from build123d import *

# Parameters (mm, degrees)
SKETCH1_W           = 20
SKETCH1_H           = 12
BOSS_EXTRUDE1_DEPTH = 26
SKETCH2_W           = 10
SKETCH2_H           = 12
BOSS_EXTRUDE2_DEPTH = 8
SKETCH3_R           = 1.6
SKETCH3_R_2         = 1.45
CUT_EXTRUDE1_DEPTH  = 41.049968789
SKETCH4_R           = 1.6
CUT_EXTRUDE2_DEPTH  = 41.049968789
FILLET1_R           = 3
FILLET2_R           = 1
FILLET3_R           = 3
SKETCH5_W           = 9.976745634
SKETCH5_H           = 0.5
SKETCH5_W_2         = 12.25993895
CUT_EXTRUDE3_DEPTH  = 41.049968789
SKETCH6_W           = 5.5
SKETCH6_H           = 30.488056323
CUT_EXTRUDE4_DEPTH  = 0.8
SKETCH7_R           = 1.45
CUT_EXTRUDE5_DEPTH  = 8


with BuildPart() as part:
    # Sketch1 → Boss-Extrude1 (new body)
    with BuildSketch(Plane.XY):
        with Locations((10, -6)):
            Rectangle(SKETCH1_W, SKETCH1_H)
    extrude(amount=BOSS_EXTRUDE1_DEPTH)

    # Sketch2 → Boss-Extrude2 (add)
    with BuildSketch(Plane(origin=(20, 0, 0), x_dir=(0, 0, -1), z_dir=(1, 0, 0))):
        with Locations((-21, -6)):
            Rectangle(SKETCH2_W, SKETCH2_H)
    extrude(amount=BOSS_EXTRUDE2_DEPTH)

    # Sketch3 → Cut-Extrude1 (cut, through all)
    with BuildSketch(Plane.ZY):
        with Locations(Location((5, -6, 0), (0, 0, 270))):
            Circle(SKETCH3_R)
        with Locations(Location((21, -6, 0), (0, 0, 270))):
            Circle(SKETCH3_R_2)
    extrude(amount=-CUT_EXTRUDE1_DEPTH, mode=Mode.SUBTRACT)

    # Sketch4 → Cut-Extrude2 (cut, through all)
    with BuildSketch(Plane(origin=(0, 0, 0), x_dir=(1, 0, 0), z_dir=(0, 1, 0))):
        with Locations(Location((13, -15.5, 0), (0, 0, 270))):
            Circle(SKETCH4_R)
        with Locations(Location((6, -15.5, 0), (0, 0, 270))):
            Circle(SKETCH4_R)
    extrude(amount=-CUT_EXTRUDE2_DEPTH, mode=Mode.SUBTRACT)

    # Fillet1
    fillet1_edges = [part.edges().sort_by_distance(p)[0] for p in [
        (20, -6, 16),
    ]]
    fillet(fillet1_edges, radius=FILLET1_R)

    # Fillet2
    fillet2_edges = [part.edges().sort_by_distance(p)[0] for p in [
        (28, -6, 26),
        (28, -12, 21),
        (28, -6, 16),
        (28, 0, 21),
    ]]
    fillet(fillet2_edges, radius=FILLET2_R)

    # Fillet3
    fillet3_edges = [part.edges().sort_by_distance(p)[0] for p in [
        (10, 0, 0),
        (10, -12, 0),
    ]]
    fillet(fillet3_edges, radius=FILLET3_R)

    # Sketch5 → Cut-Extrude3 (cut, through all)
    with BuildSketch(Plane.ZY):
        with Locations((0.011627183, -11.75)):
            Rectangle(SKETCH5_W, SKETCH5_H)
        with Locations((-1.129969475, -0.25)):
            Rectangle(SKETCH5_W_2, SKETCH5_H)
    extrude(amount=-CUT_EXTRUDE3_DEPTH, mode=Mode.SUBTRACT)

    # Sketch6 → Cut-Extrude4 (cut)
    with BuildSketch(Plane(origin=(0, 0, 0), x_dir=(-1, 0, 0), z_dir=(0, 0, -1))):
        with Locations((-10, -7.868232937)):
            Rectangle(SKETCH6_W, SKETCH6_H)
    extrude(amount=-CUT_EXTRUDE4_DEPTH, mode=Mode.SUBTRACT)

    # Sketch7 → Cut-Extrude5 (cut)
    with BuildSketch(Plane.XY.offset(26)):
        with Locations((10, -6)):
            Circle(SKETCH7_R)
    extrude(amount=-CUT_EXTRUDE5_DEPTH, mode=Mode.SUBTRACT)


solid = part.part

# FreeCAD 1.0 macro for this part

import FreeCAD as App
import Part
import Sketcher

V = App.Vector


def edges_at(feature, points):
    """Names of the edges that pass closest to the given points."""
    edges = feature.Shape.Edges
    near = lambda p: min(range(len(edges)), key=lambda i: edges[i].distToShape(Part.Vertex(*p))[0])
    return sorted({f"Edge{near(p) + 1}" for p in points})


def add_polygon(sketch, points):
    """Adds a closed chain of lines whose ends are joined by coincident constraints."""
    first, n = sketch.GeometryCount, len(points)
    for a, b in zip(points, points[1:] + points[:1]):
        sketch.addGeometry(Part.LineSegment(App.Vector(*a, 0), App.Vector(*b, 0)), False)
    for i in range(n):
        sketch.addConstraint(Sketcher.Constraint("Coincident", first + i, 2, first + (i + 1) % n, 1))

doc = App.newDocument("Part")
body = doc.addObject("PartDesign::Body", "Body")

# Sketch on XY plane
sketch1 = body.newObject("Sketcher::SketchObject", "Sketch")
sketch1.AttachmentSupport = (doc.getObject("XY_Plane"), [""])
sketch1.MapMode = "FlatFace"
add_polygon(sketch1, [(0, 0), (0, -12), (20, -12), (20, 0)])  # lines 0-3
sketch1.addConstraint(Sketcher.Constraint("Vertical", 0))
sketch1.addConstraint(Sketcher.Constraint("Horizontal", 1))
sketch1.addConstraint(Sketcher.Constraint("Vertical", 2))
sketch1.addConstraint(Sketcher.Constraint("Horizontal", 3))
sketch1.addConstraint(Sketcher.Constraint("Coincident", 3, 2, -1, 1))
sketch1.addConstraint(Sketcher.Constraint("DistanceX", 1, 1, 1, 2, 20.0))
sketch1.addConstraint(Sketcher.Constraint("DistanceY", 0, 2, 0, 1, 12.0))
pad1 = body.newObject("PartDesign::Pad", "Pad")
pad1.Profile = sketch1
pad1.Length = 26

# Sketch on YZ plane
sketch2 = body.newObject("Sketcher::SketchObject", "Sketch001")
sketch2.AttachmentSupport = (doc.getObject("YZ_Plane"), [""])
sketch2.MapMode = "FlatFace"
sketch2.AttachmentOffset = App.Placement(V(0, 0, 20), App.Rotation())
add_polygon(sketch2, [(0, 26), (-12, 26), (-12, 16), (0, 16)])  # lines 0-3
sketch2.addConstraint(Sketcher.Constraint("Horizontal", 0))
sketch2.addConstraint(Sketcher.Constraint("Vertical", 1))
sketch2.addConstraint(Sketcher.Constraint("Horizontal", 2))
sketch2.addConstraint(Sketcher.Constraint("Vertical", 3))
sketch2.addConstraint(Sketcher.Constraint("PointOnObject", 2, 2, -2))
sketch2.addConstraint(Sketcher.Constraint("DistanceX", 0, 2, 0, 1, 12.0))
sketch2.addConstraint(Sketcher.Constraint("DistanceY", 1, 2, 1, 1, 10.0))
sketch2.addConstraint(Sketcher.Constraint("DistanceY", -1, 1, 0, 2, 26.0))
pad2 = body.newObject("PartDesign::Pad", "Pad001")
pad2.Profile = sketch2
pad2.Length = 8

# Sketch on YZ plane
sketch3 = body.newObject("Sketcher::SketchObject", "Sketch002")
sketch3.AttachmentSupport = (doc.getObject("YZ_Plane"), [""])
sketch3.MapMode = "FlatFace"
sketch3.addGeometry(Part.Circle(V(-6, 5, 0), V(0, 0, 1), 1.6), False)
sketch3.addGeometry(Part.Circle(V(-6, 21, 0), V(0, 0, 1), 1.4), False)
sketch3.addConstraint(Sketcher.Constraint("Vertical", 0, 3, 1, 3))
sketch3.addConstraint(Sketcher.Constraint("Diameter", 0, 3.2))
sketch3.addConstraint(Sketcher.Constraint("Diameter", 1, 2.9))
sketch3.addConstraint(Sketcher.Constraint("DistanceX", 0, 3, -1, 1, 6.0))
sketch3.addConstraint(Sketcher.Constraint("DistanceY", -1, 1, 0, 3, 5.0))
sketch3.addConstraint(Sketcher.Constraint("DistanceY", -1, 1, 1, 3, 21.0))
pocket1 = body.newObject("PartDesign::Pocket", "Pocket")
pocket1.Profile = sketch3
pocket1.Type = "ThroughAll"
pocket1.Reversed = True

# Sketch on XZ plane
sketch4 = body.newObject("Sketcher::SketchObject", "Sketch003")
sketch4.AttachmentSupport = (doc.getObject("XZ_Plane"), [""])
sketch4.MapMode = "FlatFace"
sketch4.addGeometry(Part.Circle(V(13, 15.5, 0), V(0, 0, 1), 1.6), False)
sketch4.addGeometry(Part.Circle(V(6, 15.5, 0), V(0, 0, 1), 1.6), False)
sketch4.addConstraint(Sketcher.Constraint("Equal", 0, 1))
sketch4.addConstraint(Sketcher.Constraint("Horizontal", 0, 3, 1, 3))
sketch4.addConstraint(Sketcher.Constraint("Diameter", 0, 3.2))
sketch4.addConstraint(Sketcher.Constraint("DistanceX", -1, 1, 0, 3, 13.0))
sketch4.addConstraint(Sketcher.Constraint("DistanceX", -1, 1, 1, 3, 6.0))
sketch4.addConstraint(Sketcher.Constraint("DistanceY", -1, 1, 0, 3, 15.5))
pocket2 = body.newObject("PartDesign::Pocket", "Pocket001")
pocket2.Profile = sketch4
pocket2.Type = "ThroughAll"
pocket2.Reversed = True
doc.recompute()

fillet = body.newObject("PartDesign::Fillet", "Fillet")
fillet.Base = (pocket2, edges_at(pocket2, [(20, -6, 16)]))
fillet.Radius = 3
doc.recompute()

fillet2 = body.newObject("PartDesign::Fillet", "Fillet001")
fillet2.Base = (fillet, edges_at(fillet, [
    (28, -6, 26),
    (28, -12, 21),
    (28, -6, 16),
    (28, 0, 21),
]))
fillet2.Radius = 1
doc.recompute()

fillet3 = body.newObject("PartDesign::Fillet", "Fillet002")
fillet3.Base = (fillet2, edges_at(fillet2, [(10, 0, 0), (10, -12, 0)]))
fillet3.Radius = 3

# Sketch on YZ plane
sketch5 = body.newObject("Sketcher::SketchObject", "Sketch004")
sketch5.AttachmentSupport = (doc.getObject("YZ_Plane"), [""])
sketch5.MapMode = "FlatFace"
add_polygon(sketch5, [(-11.5, -5), (-12, -5), (-12, 5), (-11.5, 5)])  # lines 0-3
add_polygon(sketch5, [(0, -7.3), (-0.5, -7.3), (-0.5, 5), (0, 5)])  # lines 4-7
sketch5.addConstraint(Sketcher.Constraint("Horizontal", 0))
sketch5.addConstraint(Sketcher.Constraint("Vertical", 1))
sketch5.addConstraint(Sketcher.Constraint("Horizontal", 2))
sketch5.addConstraint(Sketcher.Constraint("Vertical", 3))
sketch5.addConstraint(Sketcher.Constraint("Horizontal", 4))
sketch5.addConstraint(Sketcher.Constraint("Vertical", 5))
sketch5.addConstraint(Sketcher.Constraint("Horizontal", 6))
sketch5.addConstraint(Sketcher.Constraint("Vertical", 7))
sketch5.addConstraint(Sketcher.Constraint("PointOnObject", 6, 2, -2))
sketch5.addConstraint(Sketcher.Constraint("Horizontal", 2, 2, 5, 2))
sketch5.addConstraint(Sketcher.Constraint("Equal", 2, 4))
sketch5.addConstraint(Sketcher.Constraint("DistanceX", 0, 2, 0, 1, 0.5))
sketch5.addConstraint(Sketcher.Constraint("DistanceX", 0, 2, -1, 1, 12.0))
sketch5.addConstraint(Sketcher.Constraint("DistanceY", -1, 1, 1, 2, 5.0))
sketch5.addConstraint(Sketcher.Constraint("DistanceY", 5, 1, 5, 2, 12.259939))
sketch5.addConstraint(Sketcher.Constraint("DistanceY", 1, 1, 1, 2, 9.976746))
pocket3 = body.newObject("PartDesign::Pocket", "Pocket002")
pocket3.Profile = sketch5
pocket3.Type = "ThroughAll"
pocket3.Reversed = True

# Sketch on XY plane
sketch6 = body.newObject("Sketcher::SketchObject", "Sketch005")
sketch6.AttachmentSupport = (doc.getObject("XY_Plane"), [""])
sketch6.MapMode = "FlatFace"
add_polygon(sketch6, [(13, 7), (13, -23), (7, -23), (7, 7)])  # lines 0-3
sketch6.addConstraint(Sketcher.Constraint("Vertical", 0))
sketch6.addConstraint(Sketcher.Constraint("Horizontal", 1))
sketch6.addConstraint(Sketcher.Constraint("Vertical", 2))
sketch6.addConstraint(Sketcher.Constraint("Horizontal", 3))
sketch6.addConstraint(Sketcher.Constraint("DistanceX", 1, 2, 1, 1, 5.5))
sketch6.addConstraint(Sketcher.Constraint("DistanceX", -1, 1, 0, 2, 12.75))
sketch6.addConstraint(Sketcher.Constraint("DistanceY", 0, 2, 0, 1, 30.488056))
sketch6.addConstraint(Sketcher.Constraint("DistanceY", 0, 2, -1, 1, 23.112261))
pocket4 = body.newObject("PartDesign::Pocket", "Pocket003")
pocket4.Profile = sketch6
pocket4.Length = 0.8
pocket4.Reversed = True

# Sketch on XY plane
sketch7 = body.newObject("Sketcher::SketchObject", "Sketch006")
sketch7.AttachmentSupport = (doc.getObject("XY_Plane"), [""])
sketch7.MapMode = "FlatFace"
sketch7.AttachmentOffset = App.Placement(V(0, 0, 26), App.Rotation())
sketch7.addGeometry(Part.Circle(V(10, -6, 0), V(0, 0, 1), 1.4), False)
sketch7.addConstraint(Sketcher.Constraint("Diameter", 0, 2.9))
sketch7.addConstraint(Sketcher.Constraint("DistanceX", -1, 1, 0, 3, 10.0))
sketch7.addConstraint(Sketcher.Constraint("DistanceY", 0, 3, -1, 1, 6.0))
pocket5 = body.newObject("PartDesign::Pocket", "Pocket004")
pocket5.Profile = sketch7
pocket5.Length = 8

doc.recompute()
